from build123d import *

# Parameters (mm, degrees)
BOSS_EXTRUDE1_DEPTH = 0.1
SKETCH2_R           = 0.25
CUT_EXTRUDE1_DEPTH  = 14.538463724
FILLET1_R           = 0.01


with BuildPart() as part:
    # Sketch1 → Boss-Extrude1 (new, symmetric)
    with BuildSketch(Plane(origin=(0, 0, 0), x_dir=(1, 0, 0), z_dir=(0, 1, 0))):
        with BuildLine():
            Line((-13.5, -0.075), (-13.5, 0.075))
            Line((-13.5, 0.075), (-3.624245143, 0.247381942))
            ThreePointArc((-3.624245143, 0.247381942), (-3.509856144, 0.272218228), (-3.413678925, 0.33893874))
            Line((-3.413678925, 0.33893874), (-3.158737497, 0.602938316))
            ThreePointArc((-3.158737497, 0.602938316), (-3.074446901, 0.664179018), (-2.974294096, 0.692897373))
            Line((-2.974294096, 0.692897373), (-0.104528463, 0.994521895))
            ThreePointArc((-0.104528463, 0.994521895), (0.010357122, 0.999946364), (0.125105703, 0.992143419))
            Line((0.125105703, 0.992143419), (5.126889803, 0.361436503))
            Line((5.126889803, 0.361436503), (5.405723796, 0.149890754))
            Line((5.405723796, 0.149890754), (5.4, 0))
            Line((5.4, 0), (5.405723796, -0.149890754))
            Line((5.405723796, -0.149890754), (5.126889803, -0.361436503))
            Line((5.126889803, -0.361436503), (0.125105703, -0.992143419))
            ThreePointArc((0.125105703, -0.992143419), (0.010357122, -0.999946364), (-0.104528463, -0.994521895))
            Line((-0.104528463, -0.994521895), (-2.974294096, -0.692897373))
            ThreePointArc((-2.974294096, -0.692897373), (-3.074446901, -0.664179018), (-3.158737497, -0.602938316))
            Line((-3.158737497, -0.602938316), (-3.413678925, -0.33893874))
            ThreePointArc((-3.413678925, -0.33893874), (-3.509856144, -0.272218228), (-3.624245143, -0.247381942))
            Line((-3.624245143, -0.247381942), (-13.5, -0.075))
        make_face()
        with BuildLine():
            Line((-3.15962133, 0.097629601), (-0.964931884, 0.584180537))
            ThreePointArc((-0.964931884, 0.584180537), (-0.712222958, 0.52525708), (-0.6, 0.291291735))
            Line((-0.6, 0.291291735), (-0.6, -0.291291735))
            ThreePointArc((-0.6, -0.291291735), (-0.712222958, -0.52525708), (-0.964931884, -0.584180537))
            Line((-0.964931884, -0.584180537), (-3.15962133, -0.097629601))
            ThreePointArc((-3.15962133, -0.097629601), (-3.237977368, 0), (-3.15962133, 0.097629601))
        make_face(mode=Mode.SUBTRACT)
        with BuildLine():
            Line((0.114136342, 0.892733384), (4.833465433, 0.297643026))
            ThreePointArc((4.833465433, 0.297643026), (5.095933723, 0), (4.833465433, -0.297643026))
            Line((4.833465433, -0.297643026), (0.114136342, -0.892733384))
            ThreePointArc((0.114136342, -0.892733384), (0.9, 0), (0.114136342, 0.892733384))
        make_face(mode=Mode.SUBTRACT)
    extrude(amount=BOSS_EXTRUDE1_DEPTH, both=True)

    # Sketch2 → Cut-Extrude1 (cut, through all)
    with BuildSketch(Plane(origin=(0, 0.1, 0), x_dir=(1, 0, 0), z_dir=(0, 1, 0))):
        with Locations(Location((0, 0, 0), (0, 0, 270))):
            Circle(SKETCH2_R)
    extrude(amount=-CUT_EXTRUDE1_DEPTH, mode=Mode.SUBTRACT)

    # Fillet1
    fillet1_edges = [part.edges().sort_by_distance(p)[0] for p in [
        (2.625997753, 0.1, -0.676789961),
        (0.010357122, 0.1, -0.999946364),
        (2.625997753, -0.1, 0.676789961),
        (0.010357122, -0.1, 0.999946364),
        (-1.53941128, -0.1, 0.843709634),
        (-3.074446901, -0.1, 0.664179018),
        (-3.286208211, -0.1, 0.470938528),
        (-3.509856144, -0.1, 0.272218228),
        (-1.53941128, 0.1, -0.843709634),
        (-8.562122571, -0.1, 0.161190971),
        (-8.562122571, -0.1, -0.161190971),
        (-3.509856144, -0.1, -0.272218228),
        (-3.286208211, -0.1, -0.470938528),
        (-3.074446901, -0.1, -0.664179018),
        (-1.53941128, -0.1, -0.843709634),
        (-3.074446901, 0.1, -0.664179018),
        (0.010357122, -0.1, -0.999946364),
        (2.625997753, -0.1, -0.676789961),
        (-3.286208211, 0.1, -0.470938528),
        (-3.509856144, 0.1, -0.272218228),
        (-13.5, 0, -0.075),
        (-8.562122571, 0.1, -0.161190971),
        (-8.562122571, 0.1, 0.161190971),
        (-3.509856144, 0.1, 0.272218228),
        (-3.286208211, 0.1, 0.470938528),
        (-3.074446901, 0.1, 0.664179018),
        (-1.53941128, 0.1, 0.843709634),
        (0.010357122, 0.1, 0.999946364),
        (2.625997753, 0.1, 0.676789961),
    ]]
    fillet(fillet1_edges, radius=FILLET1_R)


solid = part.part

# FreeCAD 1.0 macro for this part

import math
import FreeCAD as App
import Part
import Sketcher
Q = App.Units.Quantity


def edges_at(feature, points):
    """Names of the edges that pass closest to the given points."""
    edges = feature.Shape.Edges
    near = lambda p: min(range(len(edges)), key=lambda i: edges[i].distToShape(Part.Vertex(*p))[0])
    return sorted({f"Edge{near(p) + 1}" for p in points})

doc = App.newDocument("Part")
params = doc.addObject("Spreadsheet::Sheet", "Params")
for row, (alias, value) in enumerate([
    ("sketch1_radius", "1 mm"),
    ("sketch1_radius2", "0.3 mm"),
    ("sketch1_radius3", "0.9 mm"),
    ("sketch1_radius4", "0.1 mm"),
    ("sketch1_height", "0.15 mm"),
    ("pad1_length", "0.2 mm"),
    ("sketch2_diameter", "0.5 mm"),
    ("fillet_radius", "0.01 mm"),
], start=1):
    params.set(f"A{row}", alias)
    params.set(f"B{row}", "=" + value)
    params.setAlias(f"B{row}", alias)

body = doc.addObject("PartDesign::Body", "Body")

# Sketch on XZ plane
sketch1 = body.newObject("Sketcher::SketchObject", "Sketch")
sketch1.AttachmentSupport = (doc.getObject("XZ_Plane"), [""])
sketch1.MapMode = "FlatFace"
sketch1.addGeometry([
    Part.LineSegment(App.Vector(-13.5, -0.07, 0), App.Vector(-13.5, 0.07, 0)),  # 0
    Part.LineSegment(App.Vector(-13.5, 0.07, 0), App.Vector(-3.62, 0.25, 0)),  # 1
    Part.ArcOfCircle(Part.Circle(App.Vector(-3.63, 0.55, 0), App.Vector(0, 0, 1), 0.3), math.radians(-89), math.radians(-44)),  # 2
    Part.LineSegment(App.Vector(-3.41, 0.34, 0), App.Vector(-3.16, 0.6, 0)),  # 3
    Part.ArcOfCircle(Part.Circle(App.Vector(-2.94, 0.39, 0), App.Vector(0, 0, 1), 0.3), math.radians(96), math.radians(136)),  # 4
    Part.LineSegment(App.Vector(-2.97, 0.69, 0), App.Vector(-0.1, 0.99, 0)),  # 5
    Part.ArcOfCircle(Part.Circle(App.Vector(0, 0, 0), App.Vector(0, 0, 1), 1), math.radians(82.81), math.radians(96)),  # 6
    Part.LineSegment(App.Vector(0.13, 0.99, 0), App.Vector(5.13, 0.36, 0)),  # 7
    Part.LineSegment(App.Vector(5.13, 0.36, 0), App.Vector(5.41, 0.15, 0)),  # 8
    Part.LineSegment(App.Vector(5.41, 0.15, 0), App.Vector(5.4, 0, 0)),  # 9
    Part.LineSegment(App.Vector(5.4, 0, 0), App.Vector(5.41, -0.15, 0)),  # 10
    Part.LineSegment(App.Vector(5.41, -0.15, 0), App.Vector(5.13, -0.36, 0)),  # 11
    Part.LineSegment(App.Vector(5.13, -0.36, 0), App.Vector(0.13, -0.99, 0)),  # 12
    Part.ArcOfCircle(Part.Circle(App.Vector(0, 0, 0), App.Vector(0, 0, 1), 1), math.radians(-96), math.radians(-82.81)),  # 13
    Part.LineSegment(App.Vector(-0.1, -0.99, 0), App.Vector(-2.97, -0.69, 0)),  # 14
    Part.ArcOfCircle(Part.Circle(App.Vector(-2.94, -0.39, 0), App.Vector(0, 0, 1), 0.3), math.radians(-136), math.radians(-96)),  # 15
    Part.LineSegment(App.Vector(-3.16, -0.6, 0), App.Vector(-3.41, -0.34, 0)),  # 16
    Part.ArcOfCircle(Part.Circle(App.Vector(-3.63, -0.55, 0), App.Vector(0, 0, 1), 0.3), math.radians(44), math.radians(89)),  # 17
    Part.LineSegment(App.Vector(-3.62, -0.25, 0), App.Vector(-13.5, -0.07, 0)),  # 18
    Part.LineSegment(App.Vector(0.11, -0.89, 0), App.Vector(4.83, -0.3, 0)),  # 19
    Part.ArcOfCircle(Part.Circle(App.Vector(4.8, 0, 0), App.Vector(0, 0, 1), 0.3), math.radians(-83), math.radians(83)),  # 20
    Part.LineSegment(App.Vector(4.83, 0.3, 0), App.Vector(0.11, 0.89, 0)),  # 21
    Part.ArcOfCircle(Part.Circle(App.Vector(0, 0, 0), App.Vector(0, 0, 1), 0.9), math.radians(-83), math.radians(83)),  # 22
    Part.LineSegment(App.Vector(-3.16, -0.1, 0), App.Vector(-0.96, -0.58, 0)),  # 23
    Part.ArcOfCircle(Part.Circle(App.Vector(-0.9, -0.29, 0), App.Vector(0, 0, 1), 0.3), math.radians(-103), math.radians(0)),  # 24
    Part.LineSegment(App.Vector(-0.6, -0.29, 0), App.Vector(-0.6, 0.29, 0)),  # 25
    Part.ArcOfCircle(Part.Circle(App.Vector(-0.9, 0.29, 0), App.Vector(0, 0, 1), 0.3), math.radians(0), math.radians(103)),  # 26
    Part.LineSegment(App.Vector(-0.96, 0.58, 0), App.Vector(-3.16, 0.1, 0)),  # 27
    Part.ArcOfCircle(Part.Circle(App.Vector(-3.14, 0, 0), App.Vector(0, 0, 1), 0.1), math.radians(103), math.radians(257)),  # 28
], False)
sketch1.addConstraint([
    Sketcher.Constraint("Coincident", 0, 2, 1, 1),
    Sketcher.Constraint("Tangent", 1, 2, 2, 1),
    Sketcher.Constraint("Tangent", 2, 2, 3, 1),
    Sketcher.Constraint("Tangent", 3, 2, 4, 2),
    Sketcher.Constraint("Tangent", 4, 1, 5, 1),
    Sketcher.Constraint("Tangent", 5, 2, 6, 2),
    Sketcher.Constraint("Tangent", 6, 1, 7, 1),
    Sketcher.Constraint("Coincident", 7, 2, 8, 1),
    Sketcher.Constraint("Coincident", 8, 2, 9, 1),
    Sketcher.Constraint("Coincident", 9, 2, 10, 1),
    Sketcher.Constraint("Coincident", 10, 2, 11, 1),
    Sketcher.Constraint("Coincident", 11, 2, 12, 1),
    Sketcher.Constraint("Tangent", 12, 2, 13, 2),
    Sketcher.Constraint("Tangent", 13, 1, 14, 1),
    Sketcher.Constraint("Tangent", 14, 2, 15, 2),
    Sketcher.Constraint("Tangent", 15, 1, 16, 1),
    Sketcher.Constraint("Tangent", 16, 2, 17, 1),
    Sketcher.Constraint("Tangent", 17, 2, 18, 1),
    Sketcher.Constraint("Coincident", 18, 2, 0, 1),
    Sketcher.Constraint("Tangent", 19, 2, 20, 1),
    Sketcher.Constraint("Tangent", 20, 2, 21, 1),
    Sketcher.Constraint("Coincident", 21, 2, 22, 2),
    Sketcher.Constraint("Coincident", 22, 1, 19, 1),
    Sketcher.Constraint("Tangent", 23, 2, 24, 1),
    Sketcher.Constraint("Tangent", 24, 2, 25, 1),
    Sketcher.Constraint("Tangent", 25, 2, 26, 1),
    Sketcher.Constraint("Tangent", 26, 2, 27, 1),
    Sketcher.Constraint("Tangent", 27, 2, 28, 1),
    Sketcher.Constraint("Tangent", 28, 2, 23, 1),
    Sketcher.Constraint("Vertical", 0),
    Sketcher.Constraint("Vertical", 25),
    Sketcher.Constraint("Coincident", 6, 3, -1, 1),
    Sketcher.Constraint("Coincident", 13, 3, -1, 1),
    Sketcher.Constraint("Coincident", 22, 3, -1, 1),
    Sketcher.Constraint("Equal", 2, 4),
    Sketcher.Constraint("Equal", 6, 13),
    Sketcher.Constraint("Equal", 4, 15),
    Sketcher.Constraint("Equal", 15, 17),
    Sketcher.Constraint("Equal", 17, 20),
    Sketcher.Constraint("Equal", 20, 24),
    Sketcher.Constraint("Equal", 24, 26),
    Sketcher.Constraint("Symmetric", 4, 3, 15, 3, -1),
    Sketcher.Constraint("Symmetric", 2, 3, 17, 3, -1),
    Sketcher.Constraint("Symmetric", 8, 2, 10, 2, -1),
    Sketcher.Constraint("Symmetric", 7, 2, 11, 2, -1),
    Sketcher.Constraint("Symmetric", 23, 2, 26, 2, -1),
    Sketcher.Constraint("PointOnObject", 20, 3, -1),
    Sketcher.Constraint("PointOnObject", 9, 2, -1),
    Sketcher.Constraint("Parallel", 12, 19),
    Sketcher.Constraint("Vertical", 1, 2, 17, 2),
    Sketcher.Constraint("Vertical", 21, 2, 22, 1),
    Sketcher.Constraint("Radius", 6, 1.0),
    Sketcher.Constraint("Radius", 2, 0.3),
    Sketcher.Constraint("Radius", 22, 0.9),
    Sketcher.Constraint("Radius", 28, 0.1),
    Sketcher.Constraint("Angle", 1, Q("1 deg")),
    Sketcher.Constraint("Angle", 3, Q("46 deg")),
    Sketcher.Constraint("Angle", 5, Q("6 deg")),
    Sketcher.Constraint("Angle", 23, Q("-12.5 deg")),
    Sketcher.Constraint("DistanceY", 0, 1, 0, 2, 0.15),
    Sketcher.Constraint("DistanceX", 24, 3, -1, 1, 0.9),
    Sketcher.Constraint("DistanceX", 0, 2, -1, 1, 13.5),
    Sketcher.Constraint("DistanceX", -1, 1, 9, 2, 5.4),
    Sketcher.Constraint("Distance", 8, 0.35),
    Sketcher.Constraint("Distance", 9, 0.15),
    Sketcher.Constraint("DistanceY", 2, 2, 3, 2, 0.264),
    Sketcher.Constraint("Distance", 19, 4.7567),
    Sketcher.Constraint("DistanceX", 2, 2, 28, 3, 0.275702),
    Sketcher.Constraint("DistanceX", -1, 1, 7, 2, 5.12689),
    Sketcher.Constraint("DistanceX", 4, 3, 20, 3, 7.738869),
])
sketch1.setExpression("Constraints[51]", "Params.sketch1_radius")
sketch1.setExpression("Constraints[52]", "Params.sketch1_radius2")
sketch1.setExpression("Constraints[53]", "Params.sketch1_radius3")
sketch1.setExpression("Constraints[54]", "Params.sketch1_radius4")
sketch1.setExpression("Constraints[59]", "Params.sketch1_height")
pad1 = body.newObject("PartDesign::Pad", "Pad")
pad1.Profile = sketch1
pad1.setExpression("Length", "Params.pad1_length")
pad1.Midplane = True

# Sketch on XZ plane
sketch2 = body.newObject("Sketcher::SketchObject", "Sketch001")
sketch2.AttachmentSupport = (doc.getObject("XZ_Plane"), [""])
sketch2.MapMode = "FlatFace"
sketch2.AttachmentOffset = App.Placement(App.Vector(0, 0, -0.1), App.Rotation())
sketch2.addGeometry(Part.Circle(App.Vector(0, 0, 0), App.Vector(0, 0, 1), 0.25), False)
sketch2.addConstraint([
    Sketcher.Constraint("Coincident", 0, 3, -1, 1),
    Sketcher.Constraint("Diameter", 0, 0.5),
])
sketch2.setExpression("Constraints[1]", "Params.sketch2_diameter")
pocket1 = body.newObject("PartDesign::Pocket", "Pocket")
pocket1.Profile = sketch2
pocket1.Type = "ThroughAll"
pocket1.Reversed = True
doc.recompute()

fillet = body.newObject("PartDesign::Fillet", "Fillet")
fillet.Base = (pocket1, edges_at(pocket1, [
    (2.626, 0.1, -0.677),
    (0.01, 0.1, -1),
    (2.626, -0.1, 0.677),
    (0.01, -0.1, 1),
    (-1.539, -0.1, 0.844),
    (-3.074, -0.1, 0.664),
    (-3.286, -0.1, 0.471),
    (-3.51, -0.1, 0.272),
    (-1.539, 0.1, -0.844),
    (-8.562, -0.1, 0.161),
    (-8.562, -0.1, -0.161),
    (-3.51, -0.1, -0.272),
    (-3.286, -0.1, -0.471),
    (-3.074, -0.1, -0.664),
    (-1.539, -0.1, -0.844),
    (-3.074, 0.1, -0.664),
    (0.01, -0.1, -1),
    (2.626, -0.1, -0.677),
    (-3.286, 0.1, -0.471),
    (-3.51, 0.1, -0.272),
    (-13.5, 0, -0.075),
    (-8.562, 0.1, -0.161),
    (-8.562, 0.1, 0.161),
    (-3.51, 0.1, 0.272),
    (-3.286, 0.1, 0.471),
    (-3.074, 0.1, 0.664),
    (-1.539, 0.1, 0.844),
    (0.01, 0.1, 1),
    (2.626, 0.1, 0.677),
]))
fillet.setExpression("Radius", "Params.fillet_radius")

doc.recompute()
